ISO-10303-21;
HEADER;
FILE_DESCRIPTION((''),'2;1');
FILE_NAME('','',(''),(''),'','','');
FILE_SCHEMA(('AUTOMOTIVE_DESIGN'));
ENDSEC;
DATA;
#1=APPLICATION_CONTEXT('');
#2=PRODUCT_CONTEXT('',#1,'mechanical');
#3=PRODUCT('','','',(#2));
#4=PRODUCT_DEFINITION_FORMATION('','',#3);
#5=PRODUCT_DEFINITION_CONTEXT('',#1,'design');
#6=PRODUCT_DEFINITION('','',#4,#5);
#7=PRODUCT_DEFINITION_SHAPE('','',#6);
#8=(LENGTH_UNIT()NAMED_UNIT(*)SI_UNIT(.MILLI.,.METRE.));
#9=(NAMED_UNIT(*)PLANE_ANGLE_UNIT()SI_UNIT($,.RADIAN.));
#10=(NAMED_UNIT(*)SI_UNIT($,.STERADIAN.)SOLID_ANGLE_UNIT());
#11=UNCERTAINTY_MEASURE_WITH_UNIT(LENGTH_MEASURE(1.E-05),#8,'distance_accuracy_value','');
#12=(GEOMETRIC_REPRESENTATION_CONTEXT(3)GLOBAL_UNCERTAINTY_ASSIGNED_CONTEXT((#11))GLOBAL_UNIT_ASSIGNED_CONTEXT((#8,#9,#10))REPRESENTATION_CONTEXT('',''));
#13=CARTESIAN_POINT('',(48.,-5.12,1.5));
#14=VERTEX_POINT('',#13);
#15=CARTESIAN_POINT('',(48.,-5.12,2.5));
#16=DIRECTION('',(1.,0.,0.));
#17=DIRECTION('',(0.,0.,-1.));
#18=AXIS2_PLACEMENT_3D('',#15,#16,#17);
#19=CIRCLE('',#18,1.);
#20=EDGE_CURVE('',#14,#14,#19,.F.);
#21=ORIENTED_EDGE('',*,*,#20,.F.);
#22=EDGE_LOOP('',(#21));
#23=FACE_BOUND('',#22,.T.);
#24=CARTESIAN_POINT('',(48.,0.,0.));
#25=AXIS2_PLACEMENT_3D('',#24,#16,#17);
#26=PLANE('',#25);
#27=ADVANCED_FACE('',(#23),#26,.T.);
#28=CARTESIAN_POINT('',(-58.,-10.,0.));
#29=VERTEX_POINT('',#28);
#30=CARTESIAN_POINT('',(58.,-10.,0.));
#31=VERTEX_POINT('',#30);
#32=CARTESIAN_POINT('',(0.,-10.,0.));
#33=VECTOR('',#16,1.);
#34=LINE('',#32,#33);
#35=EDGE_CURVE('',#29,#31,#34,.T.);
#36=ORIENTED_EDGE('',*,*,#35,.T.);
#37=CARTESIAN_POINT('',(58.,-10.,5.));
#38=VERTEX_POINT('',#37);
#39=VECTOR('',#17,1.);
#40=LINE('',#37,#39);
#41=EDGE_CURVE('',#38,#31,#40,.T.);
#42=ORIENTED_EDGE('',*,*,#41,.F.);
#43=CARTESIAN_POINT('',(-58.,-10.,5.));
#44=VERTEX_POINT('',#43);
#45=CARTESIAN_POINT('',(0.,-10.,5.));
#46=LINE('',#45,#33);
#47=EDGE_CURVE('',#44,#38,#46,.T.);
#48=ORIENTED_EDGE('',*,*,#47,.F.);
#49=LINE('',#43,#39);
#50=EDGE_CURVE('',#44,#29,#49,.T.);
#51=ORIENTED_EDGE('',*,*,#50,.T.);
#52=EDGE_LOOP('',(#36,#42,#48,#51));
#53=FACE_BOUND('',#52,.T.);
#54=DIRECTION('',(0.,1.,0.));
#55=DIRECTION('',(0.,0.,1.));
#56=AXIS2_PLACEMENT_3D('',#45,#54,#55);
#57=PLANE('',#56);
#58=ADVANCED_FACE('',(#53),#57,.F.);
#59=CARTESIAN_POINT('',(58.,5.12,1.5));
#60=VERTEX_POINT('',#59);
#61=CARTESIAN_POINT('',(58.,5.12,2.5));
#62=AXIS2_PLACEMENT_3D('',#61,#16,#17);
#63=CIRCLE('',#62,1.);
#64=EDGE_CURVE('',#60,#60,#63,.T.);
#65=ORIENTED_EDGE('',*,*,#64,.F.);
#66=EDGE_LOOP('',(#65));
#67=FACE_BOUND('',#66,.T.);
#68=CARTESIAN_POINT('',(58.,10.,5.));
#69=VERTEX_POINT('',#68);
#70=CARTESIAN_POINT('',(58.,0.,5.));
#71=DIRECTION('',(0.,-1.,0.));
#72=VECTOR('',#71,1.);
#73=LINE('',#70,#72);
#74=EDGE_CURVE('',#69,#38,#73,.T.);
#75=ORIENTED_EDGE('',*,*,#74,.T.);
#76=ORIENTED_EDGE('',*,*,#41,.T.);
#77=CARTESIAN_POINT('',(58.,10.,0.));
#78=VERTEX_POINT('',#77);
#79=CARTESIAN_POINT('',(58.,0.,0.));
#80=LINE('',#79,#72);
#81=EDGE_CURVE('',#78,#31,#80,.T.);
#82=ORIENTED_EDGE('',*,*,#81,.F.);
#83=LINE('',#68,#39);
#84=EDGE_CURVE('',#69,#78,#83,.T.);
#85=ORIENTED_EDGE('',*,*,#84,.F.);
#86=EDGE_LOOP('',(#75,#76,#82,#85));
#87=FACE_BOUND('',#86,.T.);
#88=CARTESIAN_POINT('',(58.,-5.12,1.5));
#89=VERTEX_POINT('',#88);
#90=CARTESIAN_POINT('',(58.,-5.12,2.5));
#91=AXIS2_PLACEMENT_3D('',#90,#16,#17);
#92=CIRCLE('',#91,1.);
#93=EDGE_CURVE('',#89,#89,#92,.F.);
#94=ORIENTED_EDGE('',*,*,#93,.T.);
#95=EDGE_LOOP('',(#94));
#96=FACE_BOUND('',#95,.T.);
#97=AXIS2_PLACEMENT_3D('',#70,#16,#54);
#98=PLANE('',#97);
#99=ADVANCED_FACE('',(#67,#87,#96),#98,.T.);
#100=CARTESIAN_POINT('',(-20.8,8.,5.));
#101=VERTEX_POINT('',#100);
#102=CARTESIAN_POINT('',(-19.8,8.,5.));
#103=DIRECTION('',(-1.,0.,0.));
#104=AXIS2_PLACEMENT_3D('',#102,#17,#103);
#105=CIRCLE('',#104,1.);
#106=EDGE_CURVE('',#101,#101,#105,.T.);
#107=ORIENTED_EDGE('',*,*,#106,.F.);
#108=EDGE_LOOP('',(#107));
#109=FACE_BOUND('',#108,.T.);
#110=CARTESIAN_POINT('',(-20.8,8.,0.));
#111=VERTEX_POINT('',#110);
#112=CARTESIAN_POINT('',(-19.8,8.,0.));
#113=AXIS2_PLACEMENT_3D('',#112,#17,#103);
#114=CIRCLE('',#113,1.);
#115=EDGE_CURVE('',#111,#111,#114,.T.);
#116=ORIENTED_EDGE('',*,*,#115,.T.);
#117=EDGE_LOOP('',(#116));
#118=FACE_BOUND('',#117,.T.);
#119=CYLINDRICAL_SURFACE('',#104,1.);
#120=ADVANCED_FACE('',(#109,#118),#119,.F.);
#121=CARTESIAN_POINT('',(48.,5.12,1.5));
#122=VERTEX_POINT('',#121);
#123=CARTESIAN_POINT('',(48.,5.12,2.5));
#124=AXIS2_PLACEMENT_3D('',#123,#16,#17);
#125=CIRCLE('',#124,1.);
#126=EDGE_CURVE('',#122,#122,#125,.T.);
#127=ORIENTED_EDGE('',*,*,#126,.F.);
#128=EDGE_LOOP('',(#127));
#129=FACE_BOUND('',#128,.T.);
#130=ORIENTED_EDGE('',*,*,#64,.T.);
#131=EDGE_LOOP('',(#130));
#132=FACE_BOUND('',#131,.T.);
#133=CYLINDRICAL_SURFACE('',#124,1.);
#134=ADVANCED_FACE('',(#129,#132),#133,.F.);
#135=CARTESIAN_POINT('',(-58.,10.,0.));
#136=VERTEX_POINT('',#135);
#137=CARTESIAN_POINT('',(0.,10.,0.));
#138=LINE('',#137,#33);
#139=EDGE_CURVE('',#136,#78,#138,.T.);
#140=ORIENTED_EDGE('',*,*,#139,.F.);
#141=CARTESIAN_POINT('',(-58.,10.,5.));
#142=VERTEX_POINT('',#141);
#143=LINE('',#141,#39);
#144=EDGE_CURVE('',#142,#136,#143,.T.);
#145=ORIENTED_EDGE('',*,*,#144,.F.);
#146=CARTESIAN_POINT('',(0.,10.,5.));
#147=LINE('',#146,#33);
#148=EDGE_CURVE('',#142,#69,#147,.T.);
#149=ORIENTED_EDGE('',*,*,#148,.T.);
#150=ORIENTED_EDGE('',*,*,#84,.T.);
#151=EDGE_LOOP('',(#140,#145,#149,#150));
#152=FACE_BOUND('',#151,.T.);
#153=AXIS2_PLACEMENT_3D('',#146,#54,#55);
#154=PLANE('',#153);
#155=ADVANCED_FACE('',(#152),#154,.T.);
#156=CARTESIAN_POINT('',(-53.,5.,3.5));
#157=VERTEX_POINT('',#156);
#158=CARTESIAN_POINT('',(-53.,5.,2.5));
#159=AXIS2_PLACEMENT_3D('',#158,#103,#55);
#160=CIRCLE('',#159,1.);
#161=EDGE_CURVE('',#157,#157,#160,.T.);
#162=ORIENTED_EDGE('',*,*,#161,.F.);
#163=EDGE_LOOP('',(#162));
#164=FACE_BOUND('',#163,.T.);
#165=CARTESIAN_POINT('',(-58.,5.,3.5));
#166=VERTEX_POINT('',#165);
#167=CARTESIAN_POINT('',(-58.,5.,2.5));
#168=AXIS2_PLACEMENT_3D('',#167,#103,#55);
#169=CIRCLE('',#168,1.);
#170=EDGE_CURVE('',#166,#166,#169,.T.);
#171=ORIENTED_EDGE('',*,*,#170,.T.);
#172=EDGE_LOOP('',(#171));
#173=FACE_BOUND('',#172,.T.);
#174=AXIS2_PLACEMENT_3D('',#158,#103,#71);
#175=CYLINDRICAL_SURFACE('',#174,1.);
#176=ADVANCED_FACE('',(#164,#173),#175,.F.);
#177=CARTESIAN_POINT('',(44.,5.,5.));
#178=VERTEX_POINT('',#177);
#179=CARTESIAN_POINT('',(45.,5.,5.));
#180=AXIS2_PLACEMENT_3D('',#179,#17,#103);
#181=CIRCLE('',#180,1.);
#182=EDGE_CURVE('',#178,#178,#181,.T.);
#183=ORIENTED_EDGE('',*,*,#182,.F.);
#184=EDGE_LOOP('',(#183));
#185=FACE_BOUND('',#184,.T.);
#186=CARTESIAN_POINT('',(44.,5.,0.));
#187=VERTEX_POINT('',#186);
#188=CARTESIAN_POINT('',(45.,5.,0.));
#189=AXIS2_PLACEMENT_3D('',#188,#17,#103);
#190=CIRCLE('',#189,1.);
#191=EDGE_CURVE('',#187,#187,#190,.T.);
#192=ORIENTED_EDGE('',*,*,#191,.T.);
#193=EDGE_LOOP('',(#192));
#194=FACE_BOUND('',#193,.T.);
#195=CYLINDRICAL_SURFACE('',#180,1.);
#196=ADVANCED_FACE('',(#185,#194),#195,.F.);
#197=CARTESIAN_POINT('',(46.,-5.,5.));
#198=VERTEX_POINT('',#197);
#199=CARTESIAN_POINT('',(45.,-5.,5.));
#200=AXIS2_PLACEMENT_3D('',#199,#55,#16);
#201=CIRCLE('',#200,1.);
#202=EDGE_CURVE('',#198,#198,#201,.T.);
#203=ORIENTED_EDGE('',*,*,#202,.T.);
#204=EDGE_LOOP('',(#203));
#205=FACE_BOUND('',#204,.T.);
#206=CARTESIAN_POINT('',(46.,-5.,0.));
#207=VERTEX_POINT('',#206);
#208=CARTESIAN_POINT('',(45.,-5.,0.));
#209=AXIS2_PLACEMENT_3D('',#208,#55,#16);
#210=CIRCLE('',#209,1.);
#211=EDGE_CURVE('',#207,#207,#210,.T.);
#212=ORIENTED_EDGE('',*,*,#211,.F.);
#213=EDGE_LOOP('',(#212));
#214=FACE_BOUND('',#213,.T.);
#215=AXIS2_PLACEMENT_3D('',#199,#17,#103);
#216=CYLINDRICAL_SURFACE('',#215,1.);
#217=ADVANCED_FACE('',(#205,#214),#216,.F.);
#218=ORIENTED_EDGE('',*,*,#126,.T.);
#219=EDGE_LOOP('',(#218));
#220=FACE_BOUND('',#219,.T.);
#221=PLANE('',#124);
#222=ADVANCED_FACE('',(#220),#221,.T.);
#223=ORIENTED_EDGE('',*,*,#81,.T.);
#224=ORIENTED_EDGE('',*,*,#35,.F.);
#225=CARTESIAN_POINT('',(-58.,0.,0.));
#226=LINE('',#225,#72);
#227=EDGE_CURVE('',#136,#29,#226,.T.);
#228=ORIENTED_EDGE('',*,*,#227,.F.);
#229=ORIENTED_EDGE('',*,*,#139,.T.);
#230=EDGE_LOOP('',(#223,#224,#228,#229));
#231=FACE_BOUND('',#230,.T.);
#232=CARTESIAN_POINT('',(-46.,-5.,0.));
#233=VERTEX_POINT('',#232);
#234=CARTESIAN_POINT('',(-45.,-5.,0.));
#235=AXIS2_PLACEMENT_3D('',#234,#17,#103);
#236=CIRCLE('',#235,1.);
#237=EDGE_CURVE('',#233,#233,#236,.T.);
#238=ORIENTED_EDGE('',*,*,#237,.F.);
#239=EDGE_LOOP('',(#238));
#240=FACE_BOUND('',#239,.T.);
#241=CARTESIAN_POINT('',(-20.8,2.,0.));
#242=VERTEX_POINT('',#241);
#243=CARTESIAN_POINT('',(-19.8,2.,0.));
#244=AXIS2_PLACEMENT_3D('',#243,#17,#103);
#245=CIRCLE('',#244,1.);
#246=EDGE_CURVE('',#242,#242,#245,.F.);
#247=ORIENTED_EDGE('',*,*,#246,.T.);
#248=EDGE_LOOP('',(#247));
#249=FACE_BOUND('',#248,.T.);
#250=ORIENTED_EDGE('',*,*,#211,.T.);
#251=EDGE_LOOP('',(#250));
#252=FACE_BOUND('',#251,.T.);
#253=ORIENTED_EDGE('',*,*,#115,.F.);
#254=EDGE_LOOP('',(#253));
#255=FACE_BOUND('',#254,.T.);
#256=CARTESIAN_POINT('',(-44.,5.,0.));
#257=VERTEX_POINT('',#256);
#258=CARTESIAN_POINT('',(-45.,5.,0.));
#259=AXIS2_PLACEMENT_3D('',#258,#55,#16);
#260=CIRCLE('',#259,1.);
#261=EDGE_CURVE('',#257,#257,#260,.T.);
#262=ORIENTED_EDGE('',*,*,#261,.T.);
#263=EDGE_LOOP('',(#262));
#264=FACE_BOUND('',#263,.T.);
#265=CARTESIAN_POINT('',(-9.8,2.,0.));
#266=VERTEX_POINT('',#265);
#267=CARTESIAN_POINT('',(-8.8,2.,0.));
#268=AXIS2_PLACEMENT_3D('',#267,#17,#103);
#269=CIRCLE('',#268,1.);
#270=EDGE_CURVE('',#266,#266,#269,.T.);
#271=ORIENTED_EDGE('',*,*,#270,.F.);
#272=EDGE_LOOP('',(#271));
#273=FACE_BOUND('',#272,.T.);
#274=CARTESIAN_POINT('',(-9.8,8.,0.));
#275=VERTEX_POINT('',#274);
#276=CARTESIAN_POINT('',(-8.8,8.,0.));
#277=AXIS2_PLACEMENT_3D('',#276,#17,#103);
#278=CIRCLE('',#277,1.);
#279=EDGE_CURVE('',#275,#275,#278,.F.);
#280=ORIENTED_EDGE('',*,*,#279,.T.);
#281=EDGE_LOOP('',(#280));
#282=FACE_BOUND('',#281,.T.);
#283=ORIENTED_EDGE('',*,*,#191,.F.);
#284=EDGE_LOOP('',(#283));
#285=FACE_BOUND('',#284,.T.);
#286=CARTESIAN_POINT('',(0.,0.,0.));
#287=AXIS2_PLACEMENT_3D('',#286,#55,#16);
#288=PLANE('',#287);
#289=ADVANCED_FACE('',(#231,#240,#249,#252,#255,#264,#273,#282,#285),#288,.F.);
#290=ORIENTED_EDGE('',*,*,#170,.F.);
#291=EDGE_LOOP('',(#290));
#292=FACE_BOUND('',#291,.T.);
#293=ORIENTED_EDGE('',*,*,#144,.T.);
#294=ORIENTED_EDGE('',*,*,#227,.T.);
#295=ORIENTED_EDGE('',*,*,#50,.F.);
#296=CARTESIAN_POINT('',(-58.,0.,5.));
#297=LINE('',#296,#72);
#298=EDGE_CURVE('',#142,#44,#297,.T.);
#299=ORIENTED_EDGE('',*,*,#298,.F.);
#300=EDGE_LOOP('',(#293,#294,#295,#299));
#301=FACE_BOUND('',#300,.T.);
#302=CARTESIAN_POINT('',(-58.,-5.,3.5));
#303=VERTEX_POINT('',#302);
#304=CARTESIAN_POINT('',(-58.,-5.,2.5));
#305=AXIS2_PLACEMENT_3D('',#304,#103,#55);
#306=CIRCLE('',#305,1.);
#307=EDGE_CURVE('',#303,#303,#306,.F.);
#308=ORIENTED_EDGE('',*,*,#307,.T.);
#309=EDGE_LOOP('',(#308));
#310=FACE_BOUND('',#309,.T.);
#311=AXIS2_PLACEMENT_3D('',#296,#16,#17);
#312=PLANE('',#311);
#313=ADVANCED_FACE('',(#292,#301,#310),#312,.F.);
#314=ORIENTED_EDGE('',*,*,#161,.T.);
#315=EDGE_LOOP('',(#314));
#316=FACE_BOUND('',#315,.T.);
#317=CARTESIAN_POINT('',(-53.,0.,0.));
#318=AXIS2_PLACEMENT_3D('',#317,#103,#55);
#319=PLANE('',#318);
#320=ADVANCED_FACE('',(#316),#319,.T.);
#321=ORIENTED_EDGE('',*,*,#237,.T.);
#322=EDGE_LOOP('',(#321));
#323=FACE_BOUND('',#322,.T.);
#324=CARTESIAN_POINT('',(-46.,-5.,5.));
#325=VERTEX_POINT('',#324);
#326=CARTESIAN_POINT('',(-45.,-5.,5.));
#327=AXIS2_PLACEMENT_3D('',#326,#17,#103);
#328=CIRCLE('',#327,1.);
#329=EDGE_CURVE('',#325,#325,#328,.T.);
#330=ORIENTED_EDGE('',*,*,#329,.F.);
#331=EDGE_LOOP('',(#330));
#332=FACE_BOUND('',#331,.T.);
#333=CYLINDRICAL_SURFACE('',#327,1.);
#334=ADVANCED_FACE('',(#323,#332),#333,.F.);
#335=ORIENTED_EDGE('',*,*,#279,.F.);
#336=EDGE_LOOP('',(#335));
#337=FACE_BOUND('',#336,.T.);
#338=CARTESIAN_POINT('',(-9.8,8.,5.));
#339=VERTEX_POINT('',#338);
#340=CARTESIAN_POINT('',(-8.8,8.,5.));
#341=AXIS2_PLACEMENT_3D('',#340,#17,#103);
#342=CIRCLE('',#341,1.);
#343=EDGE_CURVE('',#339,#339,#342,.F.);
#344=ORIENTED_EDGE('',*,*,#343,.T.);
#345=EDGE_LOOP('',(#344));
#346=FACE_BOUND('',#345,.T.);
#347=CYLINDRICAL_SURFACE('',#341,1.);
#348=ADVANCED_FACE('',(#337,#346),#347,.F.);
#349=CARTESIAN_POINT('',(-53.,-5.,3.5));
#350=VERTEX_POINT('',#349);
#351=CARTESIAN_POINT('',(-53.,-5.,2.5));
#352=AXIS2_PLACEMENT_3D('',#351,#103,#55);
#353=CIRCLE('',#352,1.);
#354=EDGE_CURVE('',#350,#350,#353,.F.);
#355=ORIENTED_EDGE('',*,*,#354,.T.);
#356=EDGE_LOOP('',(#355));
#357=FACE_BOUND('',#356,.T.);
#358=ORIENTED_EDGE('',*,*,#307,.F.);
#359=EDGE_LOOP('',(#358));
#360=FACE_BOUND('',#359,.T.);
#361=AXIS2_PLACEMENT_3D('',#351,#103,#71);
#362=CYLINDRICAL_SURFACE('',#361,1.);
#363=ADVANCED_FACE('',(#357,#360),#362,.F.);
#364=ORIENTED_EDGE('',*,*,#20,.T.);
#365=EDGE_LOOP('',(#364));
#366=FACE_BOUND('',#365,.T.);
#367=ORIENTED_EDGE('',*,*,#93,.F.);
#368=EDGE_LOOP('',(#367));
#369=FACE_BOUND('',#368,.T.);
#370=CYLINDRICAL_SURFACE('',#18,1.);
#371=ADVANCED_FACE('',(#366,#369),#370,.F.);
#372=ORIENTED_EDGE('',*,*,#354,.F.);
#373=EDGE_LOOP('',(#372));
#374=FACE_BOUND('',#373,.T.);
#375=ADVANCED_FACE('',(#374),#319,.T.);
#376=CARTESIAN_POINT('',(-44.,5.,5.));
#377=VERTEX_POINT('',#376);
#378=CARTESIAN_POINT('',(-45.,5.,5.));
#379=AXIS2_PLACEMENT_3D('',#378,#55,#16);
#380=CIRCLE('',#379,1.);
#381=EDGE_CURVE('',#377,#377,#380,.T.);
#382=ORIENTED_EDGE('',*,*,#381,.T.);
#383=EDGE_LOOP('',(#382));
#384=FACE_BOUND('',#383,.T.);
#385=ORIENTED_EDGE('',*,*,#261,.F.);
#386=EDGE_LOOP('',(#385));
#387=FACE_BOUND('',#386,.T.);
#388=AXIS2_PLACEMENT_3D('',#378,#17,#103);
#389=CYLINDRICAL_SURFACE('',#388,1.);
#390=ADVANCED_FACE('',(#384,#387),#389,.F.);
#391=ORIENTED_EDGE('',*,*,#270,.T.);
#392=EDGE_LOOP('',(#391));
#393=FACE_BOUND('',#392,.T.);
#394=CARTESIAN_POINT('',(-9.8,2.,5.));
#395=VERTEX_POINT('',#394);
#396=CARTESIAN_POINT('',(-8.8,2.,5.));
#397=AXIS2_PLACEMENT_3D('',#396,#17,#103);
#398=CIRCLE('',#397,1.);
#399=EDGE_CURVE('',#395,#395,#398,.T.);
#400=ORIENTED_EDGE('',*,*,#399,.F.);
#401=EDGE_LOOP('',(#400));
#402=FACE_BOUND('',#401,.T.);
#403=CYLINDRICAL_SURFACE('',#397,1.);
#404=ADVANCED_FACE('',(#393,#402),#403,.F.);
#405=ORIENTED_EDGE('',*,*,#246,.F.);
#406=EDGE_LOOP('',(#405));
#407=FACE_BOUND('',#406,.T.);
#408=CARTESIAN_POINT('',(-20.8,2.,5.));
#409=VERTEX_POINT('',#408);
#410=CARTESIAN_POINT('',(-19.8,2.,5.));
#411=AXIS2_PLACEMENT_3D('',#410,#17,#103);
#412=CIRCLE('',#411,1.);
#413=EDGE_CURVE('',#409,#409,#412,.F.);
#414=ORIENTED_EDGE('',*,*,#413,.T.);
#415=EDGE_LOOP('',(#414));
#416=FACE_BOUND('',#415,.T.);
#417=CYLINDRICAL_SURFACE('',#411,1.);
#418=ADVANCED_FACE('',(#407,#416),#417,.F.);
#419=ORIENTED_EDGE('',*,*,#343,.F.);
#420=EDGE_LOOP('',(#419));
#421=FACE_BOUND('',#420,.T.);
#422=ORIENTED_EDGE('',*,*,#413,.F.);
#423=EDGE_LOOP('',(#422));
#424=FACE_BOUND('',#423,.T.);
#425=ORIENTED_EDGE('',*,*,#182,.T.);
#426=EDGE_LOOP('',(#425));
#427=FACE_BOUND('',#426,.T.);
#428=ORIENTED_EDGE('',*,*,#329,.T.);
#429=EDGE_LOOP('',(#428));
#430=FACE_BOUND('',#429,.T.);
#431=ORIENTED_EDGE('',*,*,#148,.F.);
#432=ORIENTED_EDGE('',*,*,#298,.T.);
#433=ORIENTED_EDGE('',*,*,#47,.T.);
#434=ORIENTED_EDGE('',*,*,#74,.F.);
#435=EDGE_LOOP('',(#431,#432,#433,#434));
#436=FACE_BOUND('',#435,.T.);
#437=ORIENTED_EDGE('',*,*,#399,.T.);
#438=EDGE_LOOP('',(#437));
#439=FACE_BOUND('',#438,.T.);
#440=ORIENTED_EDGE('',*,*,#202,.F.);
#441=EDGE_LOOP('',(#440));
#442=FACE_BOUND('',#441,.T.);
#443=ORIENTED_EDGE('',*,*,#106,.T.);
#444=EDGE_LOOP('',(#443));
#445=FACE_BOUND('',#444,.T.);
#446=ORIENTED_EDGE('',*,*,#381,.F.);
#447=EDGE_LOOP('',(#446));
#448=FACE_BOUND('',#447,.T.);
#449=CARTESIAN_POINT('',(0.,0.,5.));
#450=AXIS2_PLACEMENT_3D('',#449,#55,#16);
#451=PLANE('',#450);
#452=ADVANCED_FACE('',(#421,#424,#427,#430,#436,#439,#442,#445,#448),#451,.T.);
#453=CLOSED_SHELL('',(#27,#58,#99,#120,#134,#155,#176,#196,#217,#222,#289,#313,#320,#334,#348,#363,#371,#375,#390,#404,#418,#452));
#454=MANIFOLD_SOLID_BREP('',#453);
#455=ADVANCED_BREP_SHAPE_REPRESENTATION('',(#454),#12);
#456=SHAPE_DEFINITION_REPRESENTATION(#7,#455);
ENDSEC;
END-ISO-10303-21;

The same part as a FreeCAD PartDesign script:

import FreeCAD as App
import Part
import Sketcher
from FreeCAD import Vector


def add_polygon(sketch, points):
    """Adds a closed chain of lines whose ends are joined by coincident constraints."""
    first, n = sketch.GeometryCount, len(points)
    for a, b in zip(points, points[1:] + points[:1]):
        sketch.addGeometry(Part.LineSegment(App.Vector(*a, 0), App.Vector(*b, 0)), False)
    for i in range(n):
        sketch.addConstraint(Sketcher.Constraint("Coincident", first + i, 2, first + (i + 1) % n, 1))

doc = App.newDocument("Part")
body = doc.addObject("PartDesign::Body", "Body")

# Sketch on XY plane
sketch1 = body.newObject("Sketcher::SketchObject", "Sketch")
sketch1.AttachmentSupport = (doc.getObject("XY_Plane"), [""])
sketch1.MapMode = "FlatFace"
add_polygon(sketch1, [(-58, 10), (-58, -10), (58, -10), (58, 10)])  # lines 0-3
sketch1.addConstraint([
    Sketcher.Constraint("Vertical", 0),
    Sketcher.Constraint("Horizontal", 1),
    Sketcher.Constraint("Vertical", 2),
    Sketcher.Constraint("Horizontal", 3),
    Sketcher.Constraint("Symmetric", 0, 2, 2, 2, -1, 1),
    Sketcher.Constraint("DistanceX", 1, 1, 1, 2, 116.0),
    Sketcher.Constraint("DistanceY", 0, 2, 0, 1, 20.0),
])
pad1 = body.newObject("PartDesign::Pad", "Pad")
pad1.Profile = sketch1
pad1.Length = 5

# Sketch on YZ plane
sketch2 = body.newObject("Sketcher::SketchObject", "Sketch001")
sketch2.AttachmentSupport = (doc.getObject("YZ_Plane"), [""])
sketch2.MapMode = "FlatFace"
sketch2.AttachmentOffset = App.Placement(Vector(0, 0, 58), App.Rotation())
sketch2.addGeometry([
    Part.Circle(Vector(-5.12, 2.5, 0), Vector(0, 0, 1), 1),
    Part.Circle(Vector(5.12, 2.5, 0), Vector(0, 0, 1), 1),
], False)
sketch2.addConstraint([
    Sketcher.Constraint("Equal", 0, 1),
    Sketcher.Constraint("Symmetric", 0, 3, 1, 3, -2),
    Sketcher.Constraint("Diameter", 0, 2.0),
    Sketcher.Constraint("DistanceY", -1, 1, 0, 3, 2.5),
    Sketcher.Constraint("DistanceX", 0, 3, -1, 1, 5.12),
])
pocket1 = body.newObject("PartDesign::Pocket", "Pocket")
pocket1.Profile = sketch2
pocket1.Length = 10

# Sketch on YZ plane
sketch3 = body.newObject("Sketcher::SketchObject", "Sketch002")
sketch3.AttachmentSupport = (doc.getObject("YZ_Plane"), [""])
sketch3.MapMode = "FlatFace"
sketch3.AttachmentOffset = App.Placement(Vector(0, 0, -58), App.Rotation())
sketch3.addGeometry([
    Part.Circle(Vector(5, 2.5, 0), Vector(0, 0, 1), 1),
    Part.Circle(Vector(-5, 2.5, 0), Vector(0, 0, 1), 1),
], False)
sketch3.addConstraint([
    Sketcher.Constraint("Equal", 0, 1),
    Sketcher.Constraint("Symmetric", 0, 3, 1, 3, -2),
    Sketcher.Constraint("Diameter", 0, 2.0),
    Sketcher.Constraint("DistanceX", -1, 1, 0, 3, 5.0),
    Sketcher.Constraint("DistanceY", -1, 1, 0, 3, 2.5),
])
pocket2 = body.newObject("PartDesign::Pocket", "Pocket001")
pocket2.Profile = sketch3
pocket2.Length = 5
pocket2.Reversed = True

# Sketch on XY plane
sketch4 = body.newObject("Sketcher::SketchObject", "Sketch003")
sketch4.AttachmentSupport = (doc.getObject("XY_Plane"), [""])
sketch4.MapMode = "FlatFace"
sketch4.addGeometry([
    Part.Circle(Vector(45, 5, 0), Vector(0, 0, 1), 1),
    Part.Circle(Vector(45, -5, 0), Vector(0, 0, 1), 1),
    Part.Circle(Vector(-45, 5, 0), Vector(0, 0, 1), 1),
    Part.Circle(Vector(-45, -5, 0), Vector(0, 0, 1), 1),
], False)
sketch4.addConstraint([
    Sketcher.Constraint("Equal", 0, 1),
    Sketcher.Constraint("Equal", 1, 2),
    Sketcher.Constraint("Equal", 2, 3),
    Sketcher.Constraint("Symmetric", 1, 3, 2, 3, -1, 1),
    Sketcher.Constraint("Symmetric", 0, 3, 3, 3, -1, 1),
    Sketcher.Constraint("Symmetric", 0, 3, 2, 3, -2),
    Sketcher.Constraint("Diameter", 0, 2.0),
    Sketcher.Constraint("DistanceX", -1, 1, 0, 3, 45.0),
    Sketcher.Constraint("DistanceY", -1, 1, 0, 3, 5.0),
])
pocket3 = body.newObject("PartDesign::Pocket", "Pocket002")
pocket3.Profile = sketch4
pocket3.Type = "ThroughAll"
pocket3.Reversed = True

# Sketch on XY plane
sketch5 = body.newObject("Sketcher::SketchObject", "Sketch004")
sketch5.AttachmentSupport = (doc.getObject("XY_Plane"), [""])
sketch5.MapMode = "FlatFace"
sketch5.addGeometry([
    Part.Circle(Vector(-8.8, 8, 0), Vector(0, 0, 1), 1),
    Part.Circle(Vector(-8.8, 2, 0), Vector(0, 0, 1), 1),
    Part.Circle(Vector(-19.8, 2, 0), Vector(0, 0, 1), 1),
    Part.Circle(Vector(-19.8, 8, 0), Vector(0, 0, 1), 1),
], False)
sketch5.addConstraint([
    Sketcher.Constraint("Equal", 0, 1),
    Sketcher.Constraint("Equal", 1, 2),
    Sketcher.Constraint("Equal", 2, 3),
    Sketcher.Constraint("Horizontal", 1, 3, 2, 3),
    Sketcher.Constraint("Horizontal", 0, 3, 3, 3),
    Sketcher.Constraint("Vertical", 0, 3, 1, 3),
    Sketcher.Constraint("Vertical", 2, 3, 3, 3),
    Sketcher.Constraint("Diameter", 0, 2.0),
    Sketcher.Constraint("DistanceY", -1, 1, 0, 3, 8.0),
    Sketcher.Constraint("DistanceY", -1, 1, 1, 3, 2.0),
    Sketcher.Constraint("DistanceX", 2, 3, 1, 3, 11.0),
    Sketcher.Constraint("DistanceX", 0, 3, -1, 1, 8.8),
])
pocket4 = body.newObject("PartDesign::Pocket", "Pocket003")
pocket4.Profile = sketch5
pocket4.Type = "ThroughAll"
pocket4.Reversed = True

doc.recompute()
